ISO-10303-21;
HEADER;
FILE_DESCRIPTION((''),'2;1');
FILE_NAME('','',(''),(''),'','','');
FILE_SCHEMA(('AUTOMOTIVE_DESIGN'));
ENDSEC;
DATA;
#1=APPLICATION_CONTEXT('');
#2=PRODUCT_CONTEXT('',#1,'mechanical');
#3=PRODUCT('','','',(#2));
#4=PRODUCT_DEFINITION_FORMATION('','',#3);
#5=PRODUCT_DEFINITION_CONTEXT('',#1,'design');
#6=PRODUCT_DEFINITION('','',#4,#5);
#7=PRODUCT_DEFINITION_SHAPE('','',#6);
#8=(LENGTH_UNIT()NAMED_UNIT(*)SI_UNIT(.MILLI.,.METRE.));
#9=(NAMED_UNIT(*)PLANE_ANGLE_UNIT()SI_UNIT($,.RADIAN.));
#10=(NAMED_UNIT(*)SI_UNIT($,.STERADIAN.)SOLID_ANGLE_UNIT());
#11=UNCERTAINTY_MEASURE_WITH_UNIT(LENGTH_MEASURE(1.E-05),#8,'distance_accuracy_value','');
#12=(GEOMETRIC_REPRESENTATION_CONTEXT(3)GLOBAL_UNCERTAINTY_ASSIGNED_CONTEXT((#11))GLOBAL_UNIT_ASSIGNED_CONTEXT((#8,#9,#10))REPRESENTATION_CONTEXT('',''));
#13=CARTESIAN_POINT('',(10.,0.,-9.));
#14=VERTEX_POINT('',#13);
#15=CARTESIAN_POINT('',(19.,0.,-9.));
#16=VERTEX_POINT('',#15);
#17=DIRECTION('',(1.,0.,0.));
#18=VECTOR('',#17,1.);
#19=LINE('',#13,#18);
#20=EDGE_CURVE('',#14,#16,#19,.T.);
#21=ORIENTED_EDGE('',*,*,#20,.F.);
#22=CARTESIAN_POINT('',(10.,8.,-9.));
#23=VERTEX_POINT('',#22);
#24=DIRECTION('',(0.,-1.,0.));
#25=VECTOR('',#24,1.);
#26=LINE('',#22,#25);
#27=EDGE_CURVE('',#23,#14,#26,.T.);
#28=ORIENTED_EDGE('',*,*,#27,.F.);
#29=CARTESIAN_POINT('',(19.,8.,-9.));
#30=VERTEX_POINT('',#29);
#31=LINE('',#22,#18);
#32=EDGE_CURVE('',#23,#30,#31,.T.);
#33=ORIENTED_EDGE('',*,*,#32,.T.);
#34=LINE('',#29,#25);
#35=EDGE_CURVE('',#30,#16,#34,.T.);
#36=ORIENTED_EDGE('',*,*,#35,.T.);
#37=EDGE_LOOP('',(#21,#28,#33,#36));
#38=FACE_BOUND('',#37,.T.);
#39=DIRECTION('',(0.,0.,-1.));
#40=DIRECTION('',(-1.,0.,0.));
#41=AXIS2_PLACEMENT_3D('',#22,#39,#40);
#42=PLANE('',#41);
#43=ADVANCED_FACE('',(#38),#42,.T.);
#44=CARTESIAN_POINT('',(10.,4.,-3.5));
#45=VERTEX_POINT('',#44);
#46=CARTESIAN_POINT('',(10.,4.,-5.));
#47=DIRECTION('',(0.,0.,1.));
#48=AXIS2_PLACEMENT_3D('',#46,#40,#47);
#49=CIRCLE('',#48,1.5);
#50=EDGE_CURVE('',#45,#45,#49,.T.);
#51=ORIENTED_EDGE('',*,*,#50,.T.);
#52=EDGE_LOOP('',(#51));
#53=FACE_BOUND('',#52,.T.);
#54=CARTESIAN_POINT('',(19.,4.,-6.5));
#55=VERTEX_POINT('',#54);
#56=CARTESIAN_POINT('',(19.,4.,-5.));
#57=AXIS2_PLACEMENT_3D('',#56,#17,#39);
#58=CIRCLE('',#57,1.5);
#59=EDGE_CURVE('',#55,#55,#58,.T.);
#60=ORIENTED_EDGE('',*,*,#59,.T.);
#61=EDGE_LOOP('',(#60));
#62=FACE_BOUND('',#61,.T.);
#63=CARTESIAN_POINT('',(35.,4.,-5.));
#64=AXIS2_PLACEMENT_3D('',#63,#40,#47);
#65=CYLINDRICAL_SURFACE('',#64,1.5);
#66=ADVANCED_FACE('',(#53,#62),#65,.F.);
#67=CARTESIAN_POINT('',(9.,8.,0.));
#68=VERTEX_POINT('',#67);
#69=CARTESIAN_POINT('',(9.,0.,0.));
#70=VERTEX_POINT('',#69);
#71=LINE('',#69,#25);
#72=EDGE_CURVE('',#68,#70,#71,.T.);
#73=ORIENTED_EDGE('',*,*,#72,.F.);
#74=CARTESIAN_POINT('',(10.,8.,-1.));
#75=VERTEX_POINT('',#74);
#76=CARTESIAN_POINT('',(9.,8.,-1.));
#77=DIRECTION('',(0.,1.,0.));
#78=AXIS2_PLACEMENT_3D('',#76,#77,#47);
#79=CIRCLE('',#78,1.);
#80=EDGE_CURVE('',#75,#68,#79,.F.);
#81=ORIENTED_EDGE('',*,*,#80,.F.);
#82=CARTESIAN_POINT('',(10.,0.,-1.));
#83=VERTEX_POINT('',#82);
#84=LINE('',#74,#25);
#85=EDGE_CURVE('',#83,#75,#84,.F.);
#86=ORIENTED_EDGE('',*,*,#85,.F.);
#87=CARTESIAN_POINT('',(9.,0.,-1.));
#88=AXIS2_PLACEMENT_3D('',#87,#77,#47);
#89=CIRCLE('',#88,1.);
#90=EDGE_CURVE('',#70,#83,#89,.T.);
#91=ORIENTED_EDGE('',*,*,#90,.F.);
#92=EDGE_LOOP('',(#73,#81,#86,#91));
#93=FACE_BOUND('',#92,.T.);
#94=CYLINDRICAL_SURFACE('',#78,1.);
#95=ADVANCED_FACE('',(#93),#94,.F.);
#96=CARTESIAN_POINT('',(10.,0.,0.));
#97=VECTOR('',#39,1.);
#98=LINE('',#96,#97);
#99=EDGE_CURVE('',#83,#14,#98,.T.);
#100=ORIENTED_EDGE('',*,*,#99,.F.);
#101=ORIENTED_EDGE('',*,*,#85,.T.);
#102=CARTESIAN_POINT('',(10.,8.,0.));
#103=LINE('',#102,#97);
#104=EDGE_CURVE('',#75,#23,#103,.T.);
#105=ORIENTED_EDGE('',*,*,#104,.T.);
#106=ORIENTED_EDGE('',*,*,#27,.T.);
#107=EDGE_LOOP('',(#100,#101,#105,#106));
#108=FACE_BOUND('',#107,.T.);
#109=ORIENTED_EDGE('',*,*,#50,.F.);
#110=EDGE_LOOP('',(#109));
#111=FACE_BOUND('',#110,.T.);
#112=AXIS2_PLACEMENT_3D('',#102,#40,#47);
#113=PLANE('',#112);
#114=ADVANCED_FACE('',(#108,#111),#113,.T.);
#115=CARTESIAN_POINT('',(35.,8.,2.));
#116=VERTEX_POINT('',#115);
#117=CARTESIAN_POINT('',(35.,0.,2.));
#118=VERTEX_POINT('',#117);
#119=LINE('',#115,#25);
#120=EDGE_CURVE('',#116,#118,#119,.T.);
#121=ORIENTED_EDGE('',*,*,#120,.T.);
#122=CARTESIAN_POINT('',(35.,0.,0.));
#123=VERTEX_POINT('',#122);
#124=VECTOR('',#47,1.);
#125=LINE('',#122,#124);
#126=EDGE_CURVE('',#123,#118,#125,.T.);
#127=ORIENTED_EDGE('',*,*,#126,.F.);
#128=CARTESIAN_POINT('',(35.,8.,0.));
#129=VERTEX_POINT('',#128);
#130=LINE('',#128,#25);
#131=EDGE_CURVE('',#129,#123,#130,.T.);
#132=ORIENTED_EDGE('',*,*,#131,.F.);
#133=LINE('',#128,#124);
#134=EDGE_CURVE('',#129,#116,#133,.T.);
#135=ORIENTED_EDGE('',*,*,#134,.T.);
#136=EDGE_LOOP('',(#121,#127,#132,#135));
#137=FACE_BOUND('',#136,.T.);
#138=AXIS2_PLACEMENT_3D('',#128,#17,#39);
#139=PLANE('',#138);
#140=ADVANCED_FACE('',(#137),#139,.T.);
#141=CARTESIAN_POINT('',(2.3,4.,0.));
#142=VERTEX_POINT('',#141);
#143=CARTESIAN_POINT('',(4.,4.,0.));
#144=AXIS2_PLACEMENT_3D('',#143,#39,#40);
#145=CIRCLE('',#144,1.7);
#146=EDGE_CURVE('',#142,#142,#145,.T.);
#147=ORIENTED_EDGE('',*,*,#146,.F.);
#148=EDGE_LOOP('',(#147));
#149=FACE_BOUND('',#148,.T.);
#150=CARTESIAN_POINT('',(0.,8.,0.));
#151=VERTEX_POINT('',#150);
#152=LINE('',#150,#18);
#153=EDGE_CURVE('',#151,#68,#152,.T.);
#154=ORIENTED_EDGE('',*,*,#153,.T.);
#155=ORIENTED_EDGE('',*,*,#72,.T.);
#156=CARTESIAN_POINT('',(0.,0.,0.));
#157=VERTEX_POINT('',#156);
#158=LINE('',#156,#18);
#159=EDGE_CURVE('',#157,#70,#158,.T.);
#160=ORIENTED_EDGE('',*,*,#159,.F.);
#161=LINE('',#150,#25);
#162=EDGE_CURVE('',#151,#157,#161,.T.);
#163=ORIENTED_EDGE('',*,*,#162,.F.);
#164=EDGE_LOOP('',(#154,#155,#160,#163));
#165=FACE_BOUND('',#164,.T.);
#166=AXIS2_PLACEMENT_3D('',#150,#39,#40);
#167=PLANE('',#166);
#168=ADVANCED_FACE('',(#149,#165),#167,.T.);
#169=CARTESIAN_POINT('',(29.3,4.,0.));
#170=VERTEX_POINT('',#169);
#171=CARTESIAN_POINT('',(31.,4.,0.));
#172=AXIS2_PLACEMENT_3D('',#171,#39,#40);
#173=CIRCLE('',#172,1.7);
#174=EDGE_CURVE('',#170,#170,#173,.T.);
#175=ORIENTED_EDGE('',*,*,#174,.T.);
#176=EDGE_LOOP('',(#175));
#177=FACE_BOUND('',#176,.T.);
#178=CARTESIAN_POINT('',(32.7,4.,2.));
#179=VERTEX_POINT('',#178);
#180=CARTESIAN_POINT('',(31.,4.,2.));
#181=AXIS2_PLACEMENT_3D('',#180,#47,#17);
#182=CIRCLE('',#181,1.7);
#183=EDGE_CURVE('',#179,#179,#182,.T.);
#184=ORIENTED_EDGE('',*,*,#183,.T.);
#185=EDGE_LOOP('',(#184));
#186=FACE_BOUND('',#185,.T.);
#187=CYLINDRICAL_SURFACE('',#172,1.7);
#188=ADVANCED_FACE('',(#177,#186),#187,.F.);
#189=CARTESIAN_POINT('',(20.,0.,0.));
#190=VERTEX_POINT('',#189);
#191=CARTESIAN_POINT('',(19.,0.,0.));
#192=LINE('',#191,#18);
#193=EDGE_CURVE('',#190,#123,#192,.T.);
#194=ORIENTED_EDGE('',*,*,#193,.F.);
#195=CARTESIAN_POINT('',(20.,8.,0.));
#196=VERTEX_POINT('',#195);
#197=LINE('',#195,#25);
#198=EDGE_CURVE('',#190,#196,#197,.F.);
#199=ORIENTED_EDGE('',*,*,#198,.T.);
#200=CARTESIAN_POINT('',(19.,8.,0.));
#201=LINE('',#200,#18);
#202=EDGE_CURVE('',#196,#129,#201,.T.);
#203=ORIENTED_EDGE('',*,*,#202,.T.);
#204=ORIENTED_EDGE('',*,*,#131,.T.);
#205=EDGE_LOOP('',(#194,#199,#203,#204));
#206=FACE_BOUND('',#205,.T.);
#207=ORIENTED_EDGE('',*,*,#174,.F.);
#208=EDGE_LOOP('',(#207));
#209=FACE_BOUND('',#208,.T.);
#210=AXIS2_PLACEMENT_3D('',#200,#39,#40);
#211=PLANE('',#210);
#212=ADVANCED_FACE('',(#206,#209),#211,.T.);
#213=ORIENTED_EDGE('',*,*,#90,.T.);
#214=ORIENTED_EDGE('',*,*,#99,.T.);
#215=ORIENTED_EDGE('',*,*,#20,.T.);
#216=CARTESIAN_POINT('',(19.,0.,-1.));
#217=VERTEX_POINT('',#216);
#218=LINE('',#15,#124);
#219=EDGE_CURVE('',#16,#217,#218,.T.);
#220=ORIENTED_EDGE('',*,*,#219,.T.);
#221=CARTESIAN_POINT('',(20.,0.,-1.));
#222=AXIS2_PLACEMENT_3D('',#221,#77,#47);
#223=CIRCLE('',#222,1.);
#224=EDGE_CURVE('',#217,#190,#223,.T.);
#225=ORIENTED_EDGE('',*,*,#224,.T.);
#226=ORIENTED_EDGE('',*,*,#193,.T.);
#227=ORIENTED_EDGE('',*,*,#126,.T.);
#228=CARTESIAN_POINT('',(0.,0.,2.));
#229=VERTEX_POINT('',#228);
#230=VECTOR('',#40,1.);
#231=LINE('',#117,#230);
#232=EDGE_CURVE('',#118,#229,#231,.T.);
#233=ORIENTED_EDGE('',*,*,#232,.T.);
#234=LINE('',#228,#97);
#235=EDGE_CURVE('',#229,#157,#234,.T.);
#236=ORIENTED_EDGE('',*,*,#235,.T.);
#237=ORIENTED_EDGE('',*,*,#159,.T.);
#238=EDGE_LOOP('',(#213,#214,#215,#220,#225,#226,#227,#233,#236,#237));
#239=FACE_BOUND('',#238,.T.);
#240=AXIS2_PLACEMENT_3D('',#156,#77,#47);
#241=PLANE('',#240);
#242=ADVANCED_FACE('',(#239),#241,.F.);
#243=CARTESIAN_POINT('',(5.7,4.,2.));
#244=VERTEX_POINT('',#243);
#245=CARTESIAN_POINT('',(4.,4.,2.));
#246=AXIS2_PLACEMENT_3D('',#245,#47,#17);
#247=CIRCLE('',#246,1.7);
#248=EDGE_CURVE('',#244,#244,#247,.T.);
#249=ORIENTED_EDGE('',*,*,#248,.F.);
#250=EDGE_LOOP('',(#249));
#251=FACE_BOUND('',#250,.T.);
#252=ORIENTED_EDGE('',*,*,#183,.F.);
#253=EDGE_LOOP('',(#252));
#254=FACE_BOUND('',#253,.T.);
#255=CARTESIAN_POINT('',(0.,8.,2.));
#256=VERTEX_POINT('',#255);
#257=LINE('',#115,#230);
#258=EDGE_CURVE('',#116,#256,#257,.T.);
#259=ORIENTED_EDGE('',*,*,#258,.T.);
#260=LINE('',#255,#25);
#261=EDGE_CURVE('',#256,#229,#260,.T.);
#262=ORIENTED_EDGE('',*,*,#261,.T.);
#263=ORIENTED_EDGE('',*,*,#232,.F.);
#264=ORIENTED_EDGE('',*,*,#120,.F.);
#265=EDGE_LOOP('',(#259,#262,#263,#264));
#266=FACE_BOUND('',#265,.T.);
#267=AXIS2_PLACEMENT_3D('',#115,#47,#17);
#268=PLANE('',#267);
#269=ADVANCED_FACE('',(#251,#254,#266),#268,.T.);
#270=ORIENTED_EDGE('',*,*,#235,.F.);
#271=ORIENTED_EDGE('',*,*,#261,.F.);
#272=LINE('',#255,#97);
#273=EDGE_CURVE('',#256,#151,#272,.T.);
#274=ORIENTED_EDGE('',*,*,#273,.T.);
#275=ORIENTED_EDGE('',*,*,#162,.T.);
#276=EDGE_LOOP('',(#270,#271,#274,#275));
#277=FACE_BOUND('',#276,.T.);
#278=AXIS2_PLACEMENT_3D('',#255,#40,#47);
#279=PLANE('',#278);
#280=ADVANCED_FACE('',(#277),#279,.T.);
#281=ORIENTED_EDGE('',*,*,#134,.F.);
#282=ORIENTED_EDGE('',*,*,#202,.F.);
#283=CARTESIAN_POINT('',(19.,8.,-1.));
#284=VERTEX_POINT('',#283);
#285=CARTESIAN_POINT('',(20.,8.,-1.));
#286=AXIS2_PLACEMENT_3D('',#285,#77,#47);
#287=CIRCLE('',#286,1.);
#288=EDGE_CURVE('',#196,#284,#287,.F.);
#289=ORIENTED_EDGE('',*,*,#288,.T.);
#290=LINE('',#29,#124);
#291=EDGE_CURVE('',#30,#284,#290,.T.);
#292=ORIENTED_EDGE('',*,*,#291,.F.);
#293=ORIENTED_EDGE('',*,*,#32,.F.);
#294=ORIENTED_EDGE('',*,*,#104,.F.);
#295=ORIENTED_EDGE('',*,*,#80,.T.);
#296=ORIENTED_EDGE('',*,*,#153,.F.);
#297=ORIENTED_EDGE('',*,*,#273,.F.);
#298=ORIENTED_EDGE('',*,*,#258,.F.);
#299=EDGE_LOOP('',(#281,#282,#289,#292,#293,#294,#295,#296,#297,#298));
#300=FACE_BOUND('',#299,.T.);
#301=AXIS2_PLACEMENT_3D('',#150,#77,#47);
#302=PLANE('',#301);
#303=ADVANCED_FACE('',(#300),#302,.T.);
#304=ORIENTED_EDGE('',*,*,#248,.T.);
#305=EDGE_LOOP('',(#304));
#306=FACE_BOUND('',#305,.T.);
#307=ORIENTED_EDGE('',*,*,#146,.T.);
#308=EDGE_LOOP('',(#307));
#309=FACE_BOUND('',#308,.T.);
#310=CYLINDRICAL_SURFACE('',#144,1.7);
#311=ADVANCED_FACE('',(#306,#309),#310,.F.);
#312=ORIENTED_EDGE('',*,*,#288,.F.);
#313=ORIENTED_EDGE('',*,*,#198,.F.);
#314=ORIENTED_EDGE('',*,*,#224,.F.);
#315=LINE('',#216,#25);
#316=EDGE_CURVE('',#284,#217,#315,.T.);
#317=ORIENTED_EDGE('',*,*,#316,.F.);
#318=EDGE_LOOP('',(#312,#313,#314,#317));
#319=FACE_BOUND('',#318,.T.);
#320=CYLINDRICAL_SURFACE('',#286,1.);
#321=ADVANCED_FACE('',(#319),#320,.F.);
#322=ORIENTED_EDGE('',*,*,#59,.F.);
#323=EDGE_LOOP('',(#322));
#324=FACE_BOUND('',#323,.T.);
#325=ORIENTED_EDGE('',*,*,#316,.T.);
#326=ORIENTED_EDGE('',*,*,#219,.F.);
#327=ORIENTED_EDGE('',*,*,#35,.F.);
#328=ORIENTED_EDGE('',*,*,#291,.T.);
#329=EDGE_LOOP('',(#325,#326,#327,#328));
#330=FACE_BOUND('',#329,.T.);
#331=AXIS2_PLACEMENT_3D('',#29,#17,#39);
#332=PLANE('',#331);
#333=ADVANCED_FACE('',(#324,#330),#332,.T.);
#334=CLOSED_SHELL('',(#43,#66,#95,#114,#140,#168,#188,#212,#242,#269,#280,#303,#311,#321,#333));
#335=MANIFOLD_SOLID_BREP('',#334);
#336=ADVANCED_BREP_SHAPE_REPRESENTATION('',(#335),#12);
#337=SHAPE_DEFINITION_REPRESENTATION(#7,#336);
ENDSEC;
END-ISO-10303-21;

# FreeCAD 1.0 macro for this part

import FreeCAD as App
import Part
import Sketcher


def edges_at(feature, points):
    """Names of the edges that pass closest to the given points."""
    edges = feature.Shape.Edges
    near = lambda p: min(range(len(edges)), key=lambda i: edges[i].distToShape(Part.Vertex(*p))[0])
    return sorted({f"Edge{near(p) + 1}" for p in points})


def add_polygon(sketch, points):
    """Adds a closed chain of lines whose ends are joined by coincident constraints."""
    first, n = sketch.GeometryCount, len(points)
    for a, b in zip(points, points[1:] + points[:1]):
        sketch.addGeometry(Part.LineSegment(App.Vector(*a, 0), App.Vector(*b, 0)), False)
    for i in range(n):
        sketch.addConstraint(Sketcher.Constraint("Coincident", first + i, 2, first + (i + 1) % n, 1))

doc = App.newDocument("Part")
body = doc.addObject("PartDesign::Body", "Body")

# Sketch on XZ plane
sketch1 = body.newObject("Sketcher::SketchObject", "Sketch")
sketch1.AttachmentSupport = (doc.getObject("XZ_Plane"), [""])
sketch1.MapMode = "FlatFace"
add_polygon(sketch1, [(10, 0), (0, 0), (0, 2), (35, 2), (35, 0), (19, 0), (19, -9), (10, -9)])  # lines 0-7
sketch1.addConstraint(Sketcher.Constraint("Horizontal", 0))
sketch1.addConstraint(Sketcher.Constraint("Vertical", 1))
sketch1.addConstraint(Sketcher.Constraint("Horizontal", 2))
sketch1.addConstraint(Sketcher.Constraint("Vertical", 3))
sketch1.addConstraint(Sketcher.Constraint("Horizontal", 4))
sketch1.addConstraint(Sketcher.Constraint("Vertical", 5))
sketch1.addConstraint(Sketcher.Constraint("Horizontal", 6))
sketch1.addConstraint(Sketcher.Constraint("Vertical", 7))
sketch1.addConstraint(Sketcher.Constraint("Coincident", 0, 2, -1, 1))
sketch1.addConstraint(Sketcher.Constraint("PointOnObject", 3, 2, -1))
sketch1.addConstraint(Sketcher.Constraint("Equal", 6, 5))
sketch1.addConstraint(Sketcher.Constraint("DistanceX", 0, 2, 0, 1, 10.0))
sketch1.addConstraint(Sketcher.Constraint("DistanceX", 2, 1, 2, 2, 35.0))
sketch1.addConstraint(Sketcher.Constraint("DistanceX", 4, 2, 4, 1, 16.0))
sketch1.addConstraint(Sketcher.Constraint("DistanceY", 1, 1, 1, 2, 2.0))
pad1 = body.newObject("PartDesign::Pad", "Pad")
pad1.Profile = sketch1
pad1.Length = 8
pad1.Reversed = True

# Sketch on XY plane
sketch2 = body.newObject("Sketcher::SketchObject", "Sketch001")
sketch2.AttachmentSupport = (doc.getObject("XY_Plane"), [""])
sketch2.MapMode = "FlatFace"
sketch2.addGeometry(Part.Circle(App.Vector(4, 4, 0), App.Vector(0, 0, 1), 1.7), False)
sketch2.addGeometry(Part.Circle(App.Vector(31, 4, 0), App.Vector(0, 0, 1), 1.7), False)
sketch2.addConstraint(Sketcher.Constraint("Equal", 0, 1))
sketch2.addConstraint(Sketcher.Constraint("Horizontal", 0, 3, 1, 3))
sketch2.addConstraint(Sketcher.Constraint("Diameter", 0, 3.4))
sketch2.addConstraint(Sketcher.Constraint("DistanceX", -1, 1, 0, 3, 4.0))
sketch2.addConstraint(Sketcher.Constraint("DistanceY", -1, 1, 0, 3, 4.0))
sketch2.addConstraint(Sketcher.Constraint("DistanceX", -1, 1, 1, 3, 31.0))
doc.recompute()
hole = body.newObject("PartDesign::Hole", "Hole")
hole.Profile = sketch2
hole.ThreadType = "None"
hole.Diameter = 3.4
hole.DepthType = "Dimension"
hole.Depth = 3.9
hole.DrillPoint = "Angled"
hole.DrillPointAngle = 118
hole.Reversed = True

# Sketch on YZ plane
sketch3 = body.newObject("Sketcher::SketchObject", "Sketch002")
sketch3.AttachmentSupport = (doc.getObject("YZ_Plane"), [""])
sketch3.MapMode = "FlatFace"
sketch3.AttachmentOffset = App.Placement(App.Vector(0, 0, 10), App.Rotation())
sketch3.addGeometry(Part.Circle(App.Vector(4, -5, 0), App.Vector(0, 0, 1), 1.5), False)
sketch3.addConstraint(Sketcher.Constraint("Diameter", 0, 3.0))
sketch3.addConstraint(Sketcher.Constraint("DistanceX", -1, 1, 0, 3, 4.0))
sketch3.addConstraint(Sketcher.Constraint("DistanceY", 0, 3, -1, 1, 5.0))
pocket1 = body.newObject("PartDesign::Pocket", "Pocket")
pocket1.Profile = sketch3
pocket1.Type = "ThroughAll"
pocket1.Reversed = True
doc.recompute()

fillet = body.newObject("PartDesign::Fillet", "Fillet")
fillet.Base = (pocket1, edges_at(pocket1, [(19, 4, 0), (10, 4, 0)]))
fillet.Radius = 1

doc.recompute()
